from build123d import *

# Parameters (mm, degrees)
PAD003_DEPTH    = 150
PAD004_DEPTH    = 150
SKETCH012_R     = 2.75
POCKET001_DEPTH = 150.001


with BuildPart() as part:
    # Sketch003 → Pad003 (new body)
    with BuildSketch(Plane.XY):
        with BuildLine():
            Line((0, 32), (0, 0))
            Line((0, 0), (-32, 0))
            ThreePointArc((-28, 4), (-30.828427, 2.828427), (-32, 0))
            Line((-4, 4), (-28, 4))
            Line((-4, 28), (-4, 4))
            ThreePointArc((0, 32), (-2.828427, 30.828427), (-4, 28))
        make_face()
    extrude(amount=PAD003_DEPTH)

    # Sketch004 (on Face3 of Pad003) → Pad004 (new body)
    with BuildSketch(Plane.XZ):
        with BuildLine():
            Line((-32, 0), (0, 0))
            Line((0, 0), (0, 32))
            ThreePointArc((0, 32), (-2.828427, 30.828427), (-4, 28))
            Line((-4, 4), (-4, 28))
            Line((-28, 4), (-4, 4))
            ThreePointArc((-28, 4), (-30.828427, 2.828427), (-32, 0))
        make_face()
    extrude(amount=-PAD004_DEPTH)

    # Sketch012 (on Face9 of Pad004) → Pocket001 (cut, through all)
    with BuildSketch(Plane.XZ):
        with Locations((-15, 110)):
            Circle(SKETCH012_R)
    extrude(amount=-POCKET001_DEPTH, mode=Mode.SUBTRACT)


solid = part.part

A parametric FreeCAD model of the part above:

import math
import FreeCAD as App
import Part
import Sketcher

doc = App.newDocument("Part")
body = doc.addObject("PartDesign::Body", "Body")

# Sketch on XY plane
sketch1 = body.newObject("Sketcher::SketchObject", "Sketch")
sketch1.AttachmentSupport = (doc.getObject("XY_Plane"), [""])
sketch1.MapMode = "FlatFace"
sketch1.addGeometry([
    Part.LineSegment(App.Vector(0, 0, 0), App.Vector(0, 32, 0)),  # 0
    Part.ArcOfCircle(Part.Circle(App.Vector(0, 28, 0), App.Vector(0, 0, 1), 4), math.radians(90), math.radians(180)),  # 1
    Part.LineSegment(App.Vector(-4, 28, 0), App.Vector(-4, 4, 0)),  # 2
    Part.LineSegment(App.Vector(-4, 4, 0), App.Vector(-28, 4, 0)),  # 3
    Part.ArcOfCircle(Part.Circle(App.Vector(-28, 0, 0), App.Vector(0, 0, 1), 4), math.radians(90), math.radians(180)),  # 4
    Part.LineSegment(App.Vector(-32, 0, 0), App.Vector(0, 0, 0)),  # 5
], False)
sketch1.addConstraint([
    Sketcher.Constraint("Coincident", 0, 2, 1, 1),
    Sketcher.Constraint("Tangent", 1, 2, 2, 1),
    Sketcher.Constraint("Coincident", 2, 2, 3, 1),
    Sketcher.Constraint("Tangent", 3, 2, 4, 1),
    Sketcher.Constraint("Coincident", 4, 2, 5, 1),
    Sketcher.Constraint("Coincident", 5, 2, 0, 1),
    Sketcher.Constraint("Vertical", 0),
    Sketcher.Constraint("Vertical", 2),
    Sketcher.Constraint("Horizontal", 3),
    Sketcher.Constraint("Horizontal", 5),
    Sketcher.Constraint("Coincident", 5, 2, -1, 1),
    Sketcher.Constraint("Equal", 1, 4),
    Sketcher.Constraint("PointOnObject", 1, 3, -2),
    Sketcher.Constraint("PointOnObject", 4, 3, -1),
    Sketcher.Constraint("Equal", 5, 0),
    Sketcher.Constraint("Radius", 1, 4.0),
    Sketcher.Constraint("DistanceX", 3, 2, 3, 1, 24.0),
])
pad1 = body.newObject("PartDesign::Pad", "Pad")
pad1.Profile = sketch1
pad1.Length = 150

# Sketch on XZ plane
sketch2 = body.newObject("Sketcher::SketchObject", "Sketch001")
sketch2.AttachmentSupport = (doc.getObject("XZ_Plane"), [""])
sketch2.MapMode = "FlatFace"
sketch2.addGeometry([
    Part.LineSegment(App.Vector(-32, 0, 0), App.Vector(0, 0, 0)),  # 0
    Part.LineSegment(App.Vector(0, 0, 0), App.Vector(0, 32, 0)),  # 1
    Part.ArcOfCircle(Part.Circle(App.Vector(0, 28, 0), App.Vector(0, 0, 1), 4), math.radians(90), math.radians(180)),  # 2
    Part.LineSegment(App.Vector(-4, 28, 0), App.Vector(-4, 4, 0)),  # 3
    Part.LineSegment(App.Vector(-4, 4, 0), App.Vector(-28, 4, 0)),  # 4
    Part.ArcOfCircle(Part.Circle(App.Vector(-28, 0, 0), App.Vector(0, 0, 1), 4), math.radians(90), math.radians(180)),  # 5
], False)
sketch2.addConstraint([
    Sketcher.Constraint("Coincident", 0, 2, 1, 1),
    Sketcher.Constraint("Coincident", 1, 2, 2, 1),
    Sketcher.Constraint("Tangent", 2, 2, 3, 1),
    Sketcher.Constraint("Coincident", 3, 2, 4, 1),
    Sketcher.Constraint("Tangent", 4, 2, 5, 1),
    Sketcher.Constraint("Coincident", 5, 2, 0, 1),
    Sketcher.Constraint("Horizontal", 0),
    Sketcher.Constraint("Vertical", 1),
    Sketcher.Constraint("Vertical", 3),
    Sketcher.Constraint("Horizontal", 4),
    Sketcher.Constraint("Coincident", 0, 2, -1, 1),
    Sketcher.Constraint("Equal", 2, 5),
    Sketcher.Constraint("PointOnObject", 2, 3, -2),
    Sketcher.Constraint("PointOnObject", 5, 3, -1),
    Sketcher.Constraint("Equal", 0, 1),
    Sketcher.Constraint("Radius", 2, 4.0),
    Sketcher.Constraint("DistanceX", 0, 1, 0, 2, 32.0),
])
pad2 = body.newObject("PartDesign::Pad", "Pad001")
pad2.Profile = sketch2
pad2.Length = 150
pad2.Reversed = True

# Sketch on XZ plane
sketch3 = body.newObject("Sketcher::SketchObject", "Sketch002")
sketch3.AttachmentSupport = (doc.getObject("XZ_Plane"), [""])
sketch3.MapMode = "FlatFace"
sketch3.addGeometry(Part.Circle(App.Vector(-15, 110, 0), App.Vector(0, 0, 1), 2.8), False)
sketch3.addConstraint([
    Sketcher.Constraint("Diameter", 0, 5.5),
    Sketcher.Constraint("DistanceX", 0, 3, -1, 1, 15.0),
    Sketcher.Constraint("DistanceY", -1, 1, 0, 3, 110.0),
])
pocket1 = body.newObject("PartDesign::Pocket", "Pocket")
pocket1.Profile = sketch3
pocket1.Type = "ThroughAll"

doc.recompute()
